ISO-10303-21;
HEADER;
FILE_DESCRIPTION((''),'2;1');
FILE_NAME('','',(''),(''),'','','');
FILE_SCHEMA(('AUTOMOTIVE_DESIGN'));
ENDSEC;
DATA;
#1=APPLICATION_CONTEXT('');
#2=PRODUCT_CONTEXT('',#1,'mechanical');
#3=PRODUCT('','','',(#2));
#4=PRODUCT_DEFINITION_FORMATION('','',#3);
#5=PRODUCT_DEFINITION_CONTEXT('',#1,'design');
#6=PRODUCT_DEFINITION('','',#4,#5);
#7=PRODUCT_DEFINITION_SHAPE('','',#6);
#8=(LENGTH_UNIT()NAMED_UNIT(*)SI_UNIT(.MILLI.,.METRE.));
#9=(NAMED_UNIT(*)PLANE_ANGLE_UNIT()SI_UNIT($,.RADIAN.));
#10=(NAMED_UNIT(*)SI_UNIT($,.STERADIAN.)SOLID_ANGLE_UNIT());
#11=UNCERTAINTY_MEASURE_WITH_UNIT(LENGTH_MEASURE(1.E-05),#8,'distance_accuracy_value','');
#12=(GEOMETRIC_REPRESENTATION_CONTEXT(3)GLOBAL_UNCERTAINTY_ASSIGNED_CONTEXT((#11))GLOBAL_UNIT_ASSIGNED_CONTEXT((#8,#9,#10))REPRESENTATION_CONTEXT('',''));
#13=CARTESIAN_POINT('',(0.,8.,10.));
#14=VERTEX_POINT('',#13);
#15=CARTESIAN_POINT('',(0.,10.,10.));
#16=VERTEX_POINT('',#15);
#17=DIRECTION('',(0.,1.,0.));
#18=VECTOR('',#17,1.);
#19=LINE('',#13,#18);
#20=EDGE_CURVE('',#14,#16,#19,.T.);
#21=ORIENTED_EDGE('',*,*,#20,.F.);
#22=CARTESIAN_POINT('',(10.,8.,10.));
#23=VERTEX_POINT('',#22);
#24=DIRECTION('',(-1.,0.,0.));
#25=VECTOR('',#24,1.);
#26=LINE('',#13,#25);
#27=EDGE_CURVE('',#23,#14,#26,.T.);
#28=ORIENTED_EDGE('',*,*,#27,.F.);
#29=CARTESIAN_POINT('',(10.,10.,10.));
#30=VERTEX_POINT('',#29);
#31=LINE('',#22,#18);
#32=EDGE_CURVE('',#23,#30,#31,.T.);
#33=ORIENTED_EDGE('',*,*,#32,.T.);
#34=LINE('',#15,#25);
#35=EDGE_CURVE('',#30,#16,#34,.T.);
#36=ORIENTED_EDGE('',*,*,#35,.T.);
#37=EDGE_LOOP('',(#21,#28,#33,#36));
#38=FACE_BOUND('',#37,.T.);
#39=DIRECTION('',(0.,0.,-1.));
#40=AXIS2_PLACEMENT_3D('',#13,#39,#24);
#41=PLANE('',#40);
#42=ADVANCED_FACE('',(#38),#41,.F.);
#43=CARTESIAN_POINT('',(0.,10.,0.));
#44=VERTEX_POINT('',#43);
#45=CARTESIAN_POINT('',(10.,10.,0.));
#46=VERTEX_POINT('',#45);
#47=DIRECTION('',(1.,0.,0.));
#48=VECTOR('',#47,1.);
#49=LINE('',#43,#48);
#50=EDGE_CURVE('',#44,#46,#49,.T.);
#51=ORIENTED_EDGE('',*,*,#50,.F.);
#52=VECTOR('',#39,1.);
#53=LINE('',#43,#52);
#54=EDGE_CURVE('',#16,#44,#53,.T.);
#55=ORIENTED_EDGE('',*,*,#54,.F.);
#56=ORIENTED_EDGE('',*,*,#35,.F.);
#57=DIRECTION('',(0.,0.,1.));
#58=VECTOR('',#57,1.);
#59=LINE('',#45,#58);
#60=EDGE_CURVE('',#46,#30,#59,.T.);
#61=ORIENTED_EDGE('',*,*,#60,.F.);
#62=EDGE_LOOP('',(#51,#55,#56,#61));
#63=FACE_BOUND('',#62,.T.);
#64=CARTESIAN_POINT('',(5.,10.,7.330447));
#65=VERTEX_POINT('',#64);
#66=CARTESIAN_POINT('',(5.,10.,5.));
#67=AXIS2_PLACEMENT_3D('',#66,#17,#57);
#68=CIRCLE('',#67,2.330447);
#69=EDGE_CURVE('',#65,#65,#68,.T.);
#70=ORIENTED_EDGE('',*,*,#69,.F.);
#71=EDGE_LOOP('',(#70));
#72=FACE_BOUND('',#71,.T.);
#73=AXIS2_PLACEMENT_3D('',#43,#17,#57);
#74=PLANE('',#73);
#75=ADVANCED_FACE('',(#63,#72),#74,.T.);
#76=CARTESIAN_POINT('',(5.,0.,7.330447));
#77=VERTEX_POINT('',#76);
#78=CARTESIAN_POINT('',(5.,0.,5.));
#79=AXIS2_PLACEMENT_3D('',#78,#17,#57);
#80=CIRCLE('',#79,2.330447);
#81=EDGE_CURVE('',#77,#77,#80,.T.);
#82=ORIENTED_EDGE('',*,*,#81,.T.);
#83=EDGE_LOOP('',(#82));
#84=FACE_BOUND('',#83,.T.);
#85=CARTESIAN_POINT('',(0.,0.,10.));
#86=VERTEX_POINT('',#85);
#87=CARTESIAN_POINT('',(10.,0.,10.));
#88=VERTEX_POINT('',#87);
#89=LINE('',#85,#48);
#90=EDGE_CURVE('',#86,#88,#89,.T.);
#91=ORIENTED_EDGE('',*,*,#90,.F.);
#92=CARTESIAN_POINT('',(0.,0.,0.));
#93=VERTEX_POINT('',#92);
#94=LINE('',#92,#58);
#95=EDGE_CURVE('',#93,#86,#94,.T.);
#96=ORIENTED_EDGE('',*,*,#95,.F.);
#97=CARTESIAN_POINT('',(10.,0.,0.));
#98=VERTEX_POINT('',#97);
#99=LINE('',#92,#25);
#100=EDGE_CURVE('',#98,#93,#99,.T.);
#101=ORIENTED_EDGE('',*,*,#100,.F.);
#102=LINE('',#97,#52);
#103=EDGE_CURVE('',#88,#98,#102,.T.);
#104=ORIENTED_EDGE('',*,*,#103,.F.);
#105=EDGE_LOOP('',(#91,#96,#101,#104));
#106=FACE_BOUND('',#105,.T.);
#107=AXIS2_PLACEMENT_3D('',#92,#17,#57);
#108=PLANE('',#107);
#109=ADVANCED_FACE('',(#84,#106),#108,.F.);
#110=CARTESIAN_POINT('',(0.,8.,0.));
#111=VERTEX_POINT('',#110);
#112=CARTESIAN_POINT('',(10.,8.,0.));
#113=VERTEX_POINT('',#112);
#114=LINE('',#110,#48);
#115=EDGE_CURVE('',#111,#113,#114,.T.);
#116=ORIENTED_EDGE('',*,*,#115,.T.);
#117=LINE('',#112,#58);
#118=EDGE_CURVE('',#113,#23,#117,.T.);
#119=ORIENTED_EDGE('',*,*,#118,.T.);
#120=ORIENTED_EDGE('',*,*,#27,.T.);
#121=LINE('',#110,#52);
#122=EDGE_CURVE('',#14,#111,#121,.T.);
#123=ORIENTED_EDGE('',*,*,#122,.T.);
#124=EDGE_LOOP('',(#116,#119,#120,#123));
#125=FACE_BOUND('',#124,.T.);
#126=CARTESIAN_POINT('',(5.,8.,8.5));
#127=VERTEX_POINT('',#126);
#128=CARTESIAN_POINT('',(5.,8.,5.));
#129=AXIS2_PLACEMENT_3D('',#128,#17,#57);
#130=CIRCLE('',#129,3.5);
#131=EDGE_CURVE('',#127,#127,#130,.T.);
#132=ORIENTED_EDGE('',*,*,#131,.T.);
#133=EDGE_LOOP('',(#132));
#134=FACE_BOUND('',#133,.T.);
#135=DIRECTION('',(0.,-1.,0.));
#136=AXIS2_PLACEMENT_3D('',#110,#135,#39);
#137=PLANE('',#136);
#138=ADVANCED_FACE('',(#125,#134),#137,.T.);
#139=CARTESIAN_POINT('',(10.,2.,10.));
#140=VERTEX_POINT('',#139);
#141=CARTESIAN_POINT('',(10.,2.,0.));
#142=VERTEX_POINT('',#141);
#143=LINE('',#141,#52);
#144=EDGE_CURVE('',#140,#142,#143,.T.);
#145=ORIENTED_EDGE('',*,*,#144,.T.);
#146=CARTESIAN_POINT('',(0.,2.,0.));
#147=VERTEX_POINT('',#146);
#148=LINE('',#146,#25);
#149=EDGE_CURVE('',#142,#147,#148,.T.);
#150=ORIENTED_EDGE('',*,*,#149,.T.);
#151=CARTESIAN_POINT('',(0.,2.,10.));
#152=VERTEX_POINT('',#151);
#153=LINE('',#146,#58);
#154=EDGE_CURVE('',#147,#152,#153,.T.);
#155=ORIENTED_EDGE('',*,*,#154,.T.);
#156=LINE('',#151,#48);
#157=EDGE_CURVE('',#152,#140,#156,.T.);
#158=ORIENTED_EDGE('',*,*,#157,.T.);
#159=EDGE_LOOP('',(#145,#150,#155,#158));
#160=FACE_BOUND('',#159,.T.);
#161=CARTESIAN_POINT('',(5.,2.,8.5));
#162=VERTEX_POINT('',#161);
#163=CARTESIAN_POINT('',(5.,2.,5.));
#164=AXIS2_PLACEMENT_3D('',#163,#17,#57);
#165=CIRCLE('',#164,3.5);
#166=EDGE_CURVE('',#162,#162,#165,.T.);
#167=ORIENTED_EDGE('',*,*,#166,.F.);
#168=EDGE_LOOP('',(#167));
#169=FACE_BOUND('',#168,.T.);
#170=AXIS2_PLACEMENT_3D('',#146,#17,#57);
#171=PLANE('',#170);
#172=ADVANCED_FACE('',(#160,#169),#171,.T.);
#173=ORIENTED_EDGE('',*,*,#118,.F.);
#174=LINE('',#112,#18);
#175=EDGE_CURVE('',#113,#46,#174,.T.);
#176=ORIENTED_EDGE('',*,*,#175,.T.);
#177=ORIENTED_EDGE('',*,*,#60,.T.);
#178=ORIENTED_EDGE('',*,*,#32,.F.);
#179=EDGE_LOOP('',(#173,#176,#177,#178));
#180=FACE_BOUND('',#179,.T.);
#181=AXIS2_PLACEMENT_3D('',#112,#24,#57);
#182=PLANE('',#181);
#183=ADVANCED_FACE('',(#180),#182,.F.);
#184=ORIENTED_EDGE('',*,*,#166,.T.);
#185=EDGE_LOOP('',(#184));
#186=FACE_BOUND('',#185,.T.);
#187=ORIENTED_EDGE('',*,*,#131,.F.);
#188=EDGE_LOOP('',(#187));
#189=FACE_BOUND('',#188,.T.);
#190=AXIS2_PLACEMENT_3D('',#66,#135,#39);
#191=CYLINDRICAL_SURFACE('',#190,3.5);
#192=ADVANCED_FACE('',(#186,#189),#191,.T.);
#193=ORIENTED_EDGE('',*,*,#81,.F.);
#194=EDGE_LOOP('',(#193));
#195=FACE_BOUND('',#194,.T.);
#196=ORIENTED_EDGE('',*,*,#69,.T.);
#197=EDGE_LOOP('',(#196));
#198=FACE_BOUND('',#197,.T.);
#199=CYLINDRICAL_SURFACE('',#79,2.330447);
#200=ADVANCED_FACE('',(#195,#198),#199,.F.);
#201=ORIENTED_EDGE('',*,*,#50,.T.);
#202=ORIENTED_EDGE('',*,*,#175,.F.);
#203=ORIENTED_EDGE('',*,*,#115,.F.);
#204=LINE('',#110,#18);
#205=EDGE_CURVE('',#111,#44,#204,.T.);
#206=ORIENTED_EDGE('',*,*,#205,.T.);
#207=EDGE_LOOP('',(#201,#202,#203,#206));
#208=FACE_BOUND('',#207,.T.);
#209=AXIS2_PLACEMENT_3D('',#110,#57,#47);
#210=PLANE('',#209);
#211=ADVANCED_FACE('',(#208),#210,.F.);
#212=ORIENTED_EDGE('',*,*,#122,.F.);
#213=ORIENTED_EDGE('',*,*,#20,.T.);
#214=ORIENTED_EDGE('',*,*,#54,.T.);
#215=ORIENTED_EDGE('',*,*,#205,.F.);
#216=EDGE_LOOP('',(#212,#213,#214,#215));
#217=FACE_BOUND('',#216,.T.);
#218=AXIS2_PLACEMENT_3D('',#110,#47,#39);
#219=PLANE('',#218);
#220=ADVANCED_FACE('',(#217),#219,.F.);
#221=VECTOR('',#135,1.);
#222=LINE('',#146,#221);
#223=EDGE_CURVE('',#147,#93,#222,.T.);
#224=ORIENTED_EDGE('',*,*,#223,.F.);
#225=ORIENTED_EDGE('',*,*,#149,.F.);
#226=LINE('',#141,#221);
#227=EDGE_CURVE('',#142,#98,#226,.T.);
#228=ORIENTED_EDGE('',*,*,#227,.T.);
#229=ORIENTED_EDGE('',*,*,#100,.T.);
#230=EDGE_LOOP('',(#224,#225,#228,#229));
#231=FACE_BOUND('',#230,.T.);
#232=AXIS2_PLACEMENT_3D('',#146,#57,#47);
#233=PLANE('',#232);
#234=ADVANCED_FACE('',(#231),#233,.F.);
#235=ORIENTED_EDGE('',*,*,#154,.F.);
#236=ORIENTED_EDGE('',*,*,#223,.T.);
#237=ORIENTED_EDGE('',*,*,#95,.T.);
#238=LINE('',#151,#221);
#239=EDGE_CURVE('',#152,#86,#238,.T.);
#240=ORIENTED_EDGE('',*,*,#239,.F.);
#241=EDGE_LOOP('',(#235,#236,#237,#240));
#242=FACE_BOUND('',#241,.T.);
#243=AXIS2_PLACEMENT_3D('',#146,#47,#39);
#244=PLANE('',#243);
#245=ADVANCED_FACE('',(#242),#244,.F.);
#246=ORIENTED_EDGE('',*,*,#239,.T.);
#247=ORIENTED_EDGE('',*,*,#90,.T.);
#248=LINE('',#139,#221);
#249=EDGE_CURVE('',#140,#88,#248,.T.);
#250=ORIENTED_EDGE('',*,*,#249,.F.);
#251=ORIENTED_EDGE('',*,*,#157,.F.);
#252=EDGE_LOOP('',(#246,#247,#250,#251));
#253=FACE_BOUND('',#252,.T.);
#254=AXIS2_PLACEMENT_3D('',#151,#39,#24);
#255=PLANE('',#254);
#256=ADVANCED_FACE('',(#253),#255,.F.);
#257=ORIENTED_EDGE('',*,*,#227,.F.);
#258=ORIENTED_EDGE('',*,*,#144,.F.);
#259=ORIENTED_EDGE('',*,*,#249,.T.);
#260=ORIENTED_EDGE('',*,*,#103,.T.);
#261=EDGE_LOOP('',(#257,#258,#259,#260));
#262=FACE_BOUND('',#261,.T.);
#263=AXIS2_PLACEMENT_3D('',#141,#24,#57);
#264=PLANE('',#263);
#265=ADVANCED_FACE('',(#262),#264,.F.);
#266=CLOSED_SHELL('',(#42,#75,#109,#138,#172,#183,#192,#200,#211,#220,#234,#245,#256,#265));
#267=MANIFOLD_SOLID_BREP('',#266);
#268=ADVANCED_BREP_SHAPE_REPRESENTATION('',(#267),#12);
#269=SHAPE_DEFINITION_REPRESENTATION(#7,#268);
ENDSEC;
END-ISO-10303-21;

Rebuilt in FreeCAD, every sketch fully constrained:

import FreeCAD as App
import Part
import Sketcher

doc = App.newDocument("Part")
body = doc.addObject("PartDesign::Body", "Body")

sketch1 = body.newObject("Sketcher::SketchObject", "Sketch")
sketch1.AttachmentSupport = (doc.getObject("XZ_Plane"), [""])
sketch1.MapMode = "FlatFace"
sketch1.addGeometry([
    Part.LineSegment(App.Vector(0, 0, 0), App.Vector(0, 10, 0)),
    Part.LineSegment(App.Vector(0, 10, 0), App.Vector(10, 10, 0)),
    Part.LineSegment(App.Vector(10, 10, 0), App.Vector(10, 0, 0)),
    Part.LineSegment(App.Vector(10, 0, 0), App.Vector(0, 0, 0)),
    Part.Circle(App.Vector(5, 5, 0), App.Vector(0, 0, 1), 3.5),
], False)
sketch1.addConstraint([
    Sketcher.Constraint("Coincident", 0, 2, 1, 1),
    Sketcher.Constraint("Coincident", 1, 2, 2, 1),
    Sketcher.Constraint("Coincident", 2, 2, 3, 1),
    Sketcher.Constraint("Coincident", 3, 2, 0, 1),
    Sketcher.Constraint("Vertical", 0),
    Sketcher.Constraint("Horizontal", 1),
    Sketcher.Constraint("Vertical", 2),
    Sketcher.Constraint("Horizontal", 3),
    Sketcher.Constraint("Coincident", 3, 2, -1, 1),
    Sketcher.Constraint("Equal", 3, 0),
    Sketcher.Constraint("Diameter", 4, 7.0),
    Sketcher.Constraint("DistanceX", 1, 1, 1, 2, 10.0),
    Sketcher.Constraint("DistanceX", -1, 1, 4, 3, 5.0),
    Sketcher.Constraint("DistanceY", -1, 1, 4, 3, 5.0),
])
pad1 = body.newObject("PartDesign::Pad", "Pad")
pad1.Profile = sketch1
pad1.Length = 2
pad1.Reversed = True

sketch2 = body.newObject("Sketcher::SketchObject", "Sketch001")
sketch2.AttachmentSupport = (doc.getObject("XZ_Plane"), [""])
sketch2.MapMode = "FlatFace"
sketch2.addGeometry(Part.Circle(App.Vector(5, 5, 0), App.Vector(0, 0, 1), 3.5), False)
sketch2.addConstraint([
    Sketcher.Constraint("Diameter", 0, 7.0),
    Sketcher.Constraint("DistanceX", -1, 1, 0, 3, 5.0),
    Sketcher.Constraint("DistanceY", -1, 1, 0, 3, 5.0),
])
pad2 = body.newObject("PartDesign::Pad", "Pad001")
pad2.Profile = sketch2
pad2.Length = 10
pad2.Reversed = True

sketch3 = body.newObject("Sketcher::SketchObject", "Sketch002")
sketch3.AttachmentSupport = (doc.getObject("XZ_Plane"), [""])
sketch3.MapMode = "FlatFace"
sketch3.AttachmentOffset = App.Placement(App.Vector(0, 0, -8), App.Rotation())
sketch3.addGeometry([
    Part.LineSegment(App.Vector(0, 0, 0), App.Vector(0, 10, 0)),
    Part.LineSegment(App.Vector(0, 10, 0), App.Vector(10, 10, 0)),
    Part.LineSegment(App.Vector(10, 10, 0), App.Vector(10, 0, 0)),
    Part.LineSegment(App.Vector(10, 0, 0), App.Vector(0, 0, 0)),
    Part.Circle(App.Vector(5, 5, 0), App.Vector(0, 0, 1), 3.5),
], False)
sketch3.addConstraint([
    Sketcher.Constraint("Coincident", 0, 2, 1, 1),
    Sketcher.Constraint("Coincident", 1, 2, 2, 1),
    Sketcher.Constraint("Coincident", 2, 2, 3, 1),
    Sketcher.Constraint("Coincident", 3, 2, 0, 1),
    Sketcher.Constraint("Vertical", 0),
    Sketcher.Constraint("Horizontal", 1),
    Sketcher.Constraint("Vertical", 2),
    Sketcher.Constraint("Horizontal", 3),
    Sketcher.Constraint("Coincident", 3, 2, -1, 1),
    Sketcher.Constraint("Equal", 3, 0),
    Sketcher.Constraint("Diameter", 4, 7.0),
    Sketcher.Constraint("DistanceX", 1, 1, 1, 2, 10.0),
    Sketcher.Constraint("DistanceX", -1, 1, 4, 3, 5.0),
    Sketcher.Constraint("DistanceY", -1, 1, 4, 3, 5.0),
])
pad3 = body.newObject("PartDesign::Pad", "Pad002")
pad3.Profile = sketch3
pad3.Length = 2
pad3.Reversed = True

sketch4 = body.newObject("Sketcher::SketchObject", "Sketch003")
sketch4.AttachmentSupport = (doc.getObject("XZ_Plane"), [""])
sketch4.MapMode = "FlatFace"
sketch4.AttachmentOffset = App.Placement(App.Vector(0, 0, -10), App.Rotation())
sketch4.addGeometry(Part.Circle(App.Vector(5, 5, 0), App.Vector(0, 0, 1), 2.3), False)
sketch4.addConstraint([
    Sketcher.Constraint("DistanceX", -1, 1, 0, 3, 5.0),
    Sketcher.Constraint("DistanceY", -1, 1, 0, 3, 5.0),
    Sketcher.Constraint("Diameter", 0, 4.660893),
])
pocket1 = body.newObject("PartDesign::Pocket", "Pocket")
pocket1.Profile = sketch4
pocket1.Type = "ThroughAll"
pocket1.Reversed = True

doc.recompute()
